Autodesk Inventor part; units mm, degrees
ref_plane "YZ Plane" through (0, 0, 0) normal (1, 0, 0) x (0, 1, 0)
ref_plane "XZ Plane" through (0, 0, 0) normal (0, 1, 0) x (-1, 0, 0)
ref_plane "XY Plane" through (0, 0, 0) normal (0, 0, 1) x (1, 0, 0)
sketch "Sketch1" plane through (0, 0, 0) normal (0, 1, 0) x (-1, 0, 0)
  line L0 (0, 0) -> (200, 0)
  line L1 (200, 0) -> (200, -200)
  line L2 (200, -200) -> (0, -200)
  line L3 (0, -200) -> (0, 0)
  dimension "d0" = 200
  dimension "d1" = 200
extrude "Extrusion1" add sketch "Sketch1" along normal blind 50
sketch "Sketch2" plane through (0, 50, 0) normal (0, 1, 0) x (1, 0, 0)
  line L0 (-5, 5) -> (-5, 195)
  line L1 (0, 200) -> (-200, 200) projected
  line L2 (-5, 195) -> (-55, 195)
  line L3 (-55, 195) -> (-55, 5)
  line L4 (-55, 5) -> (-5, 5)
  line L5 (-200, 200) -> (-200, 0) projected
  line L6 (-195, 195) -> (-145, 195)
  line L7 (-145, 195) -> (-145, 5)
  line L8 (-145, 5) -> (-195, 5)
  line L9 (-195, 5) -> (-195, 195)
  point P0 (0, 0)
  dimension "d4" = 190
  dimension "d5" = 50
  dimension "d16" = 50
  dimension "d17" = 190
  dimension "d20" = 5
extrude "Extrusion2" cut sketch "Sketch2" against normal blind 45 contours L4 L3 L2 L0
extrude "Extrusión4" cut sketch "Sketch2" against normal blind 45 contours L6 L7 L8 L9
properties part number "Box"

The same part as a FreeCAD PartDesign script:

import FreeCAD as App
import Part
import Sketcher
from FreeCAD import Vector
Q = App.Units.Quantity


def add_polygon(sketch, points):
    """Adds a closed chain of lines whose ends are joined by coincident constraints."""
    first, n = sketch.GeometryCount, len(points)
    for a, b in zip(points, points[1:] + points[:1]):
        sketch.addGeometry(Part.LineSegment(App.Vector(*a, 0), App.Vector(*b, 0)), False)
    for i in range(n):
        sketch.addConstraint(Sketcher.Constraint("Coincident", first + i, 2, first + (i + 1) % n, 1))

doc = App.newDocument("Part")
params = doc.addObject("Spreadsheet::Sheet", "Params")
for row, (alias, value) in enumerate([
    ("sketch1_width", "200 mm"),
    ("pad1_length", "50 mm"),
    ("sketch2_width", "50 mm"),
    ("sketch2_height", "190 mm"),
    ("pocket1_length", "45 mm"),
    ("sketch3_width", "50 mm"),
    ("sketch3_height", "190 mm"),
    ("pocket2_length", "45 mm"),
], start=1):
    params.set(f"A{row}", alias)
    params.set(f"B{row}", "=" + value)
    params.setAlias(f"B{row}", alias)

body = doc.addObject("PartDesign::Body", "Body")

sketch1 = body.newObject("Sketcher::SketchObject", "Sketch")
sketch1.AttachmentSupport = (doc.getObject("XZ_Plane"), [""])
sketch1.MapMode = "FlatFace"
add_polygon(sketch1, [(-200, 0), (0, 0), (0, -200), (-200, -200)])
sketch1.addConstraint([
    Sketcher.Constraint("Horizontal", 0),
    Sketcher.Constraint("Vertical", 1),
    Sketcher.Constraint("Horizontal", 2),
    Sketcher.Constraint("Vertical", 3),
    Sketcher.Constraint("Coincident", 0, 2, -1, 1),
    Sketcher.Constraint("Equal", 2, 1),
    Sketcher.Constraint("DistanceX", 0, 1, 0, 2, Q("200 mm")),
])
sketch1.setExpression("Constraints[10]", "Params.sketch1_width")
pad1 = body.newObject("PartDesign::Pad", "Pad")
pad1.Profile = sketch1
pad1.setExpression("Length", "Params.pad1_length")
pad1.Reversed = True

sketch2 = body.newObject("Sketcher::SketchObject", "Sketch001")
sketch2.AttachmentSupport = (doc.getObject("XZ_Plane"), [""])
sketch2.MapMode = "FlatFace"
sketch2.AttachmentOffset = App.Placement(Vector(0, 0, -50), App.Rotation())
add_polygon(sketch2, [(-55, -5), (-5, -5), (-5, -195), (-55, -195)])
sketch2.addConstraint([
    Sketcher.Constraint("Horizontal", 0),
    Sketcher.Constraint("Vertical", 1),
    Sketcher.Constraint("Horizontal", 2),
    Sketcher.Constraint("Vertical", 3),
    Sketcher.Constraint("DistanceX", 0, 1, 0, 2, Q("50 mm")),
    Sketcher.Constraint("DistanceY", 1, 2, 1, 1, Q("190 mm")),
    Sketcher.Constraint("DistanceX", 0, 2, -1, 1, Q("5 mm")),
    Sketcher.Constraint("DistanceY", 0, 2, -1, 1, Q("5 mm")),
])
sketch2.setExpression("Constraints[8]", "Params.sketch2_width")
sketch2.setExpression("Constraints[9]", "Params.sketch2_height")
pocket1 = body.newObject("PartDesign::Pocket", "Pocket")
pocket1.Profile = sketch2
pocket1.setExpression("Length", "Params.pocket1_length")
pocket1.Reversed = True

sketch3 = body.newObject("Sketcher::SketchObject", "Sketch002")
sketch3.AttachmentSupport = (doc.getObject("XZ_Plane"), [""])
sketch3.MapMode = "FlatFace"
sketch3.AttachmentOffset = App.Placement(Vector(0, 0, -50), App.Rotation())
add_polygon(sketch3, [(-145, -195), (-195, -195), (-195, -5), (-145, -5)])
sketch3.addConstraint([
    Sketcher.Constraint("Horizontal", 0),
    Sketcher.Constraint("Vertical", 1),
    Sketcher.Constraint("Horizontal", 2),
    Sketcher.Constraint("Vertical", 3),
    Sketcher.Constraint("DistanceX", 0, 2, 0, 1, Q("50 mm")),
    Sketcher.Constraint("DistanceY", 1, 1, 1, 2, Q("190 mm")),
    Sketcher.Constraint("DistanceY", 1, 2, -1, 1, Q("5 mm")),
    Sketcher.Constraint("DistanceX", 0, 2, -1, 1, Q("195 mm")),
])
sketch3.setExpression("Constraints[8]", "Params.sketch3_width")
sketch3.setExpression("Constraints[9]", "Params.sketch3_height")
pocket2 = body.newObject("PartDesign::Pocket", "Pocket001")
pocket2.Profile = sketch3
pocket2.setExpression("Length", "Params.pocket2_length")
pocket2.Reversed = True

doc.recompute()
